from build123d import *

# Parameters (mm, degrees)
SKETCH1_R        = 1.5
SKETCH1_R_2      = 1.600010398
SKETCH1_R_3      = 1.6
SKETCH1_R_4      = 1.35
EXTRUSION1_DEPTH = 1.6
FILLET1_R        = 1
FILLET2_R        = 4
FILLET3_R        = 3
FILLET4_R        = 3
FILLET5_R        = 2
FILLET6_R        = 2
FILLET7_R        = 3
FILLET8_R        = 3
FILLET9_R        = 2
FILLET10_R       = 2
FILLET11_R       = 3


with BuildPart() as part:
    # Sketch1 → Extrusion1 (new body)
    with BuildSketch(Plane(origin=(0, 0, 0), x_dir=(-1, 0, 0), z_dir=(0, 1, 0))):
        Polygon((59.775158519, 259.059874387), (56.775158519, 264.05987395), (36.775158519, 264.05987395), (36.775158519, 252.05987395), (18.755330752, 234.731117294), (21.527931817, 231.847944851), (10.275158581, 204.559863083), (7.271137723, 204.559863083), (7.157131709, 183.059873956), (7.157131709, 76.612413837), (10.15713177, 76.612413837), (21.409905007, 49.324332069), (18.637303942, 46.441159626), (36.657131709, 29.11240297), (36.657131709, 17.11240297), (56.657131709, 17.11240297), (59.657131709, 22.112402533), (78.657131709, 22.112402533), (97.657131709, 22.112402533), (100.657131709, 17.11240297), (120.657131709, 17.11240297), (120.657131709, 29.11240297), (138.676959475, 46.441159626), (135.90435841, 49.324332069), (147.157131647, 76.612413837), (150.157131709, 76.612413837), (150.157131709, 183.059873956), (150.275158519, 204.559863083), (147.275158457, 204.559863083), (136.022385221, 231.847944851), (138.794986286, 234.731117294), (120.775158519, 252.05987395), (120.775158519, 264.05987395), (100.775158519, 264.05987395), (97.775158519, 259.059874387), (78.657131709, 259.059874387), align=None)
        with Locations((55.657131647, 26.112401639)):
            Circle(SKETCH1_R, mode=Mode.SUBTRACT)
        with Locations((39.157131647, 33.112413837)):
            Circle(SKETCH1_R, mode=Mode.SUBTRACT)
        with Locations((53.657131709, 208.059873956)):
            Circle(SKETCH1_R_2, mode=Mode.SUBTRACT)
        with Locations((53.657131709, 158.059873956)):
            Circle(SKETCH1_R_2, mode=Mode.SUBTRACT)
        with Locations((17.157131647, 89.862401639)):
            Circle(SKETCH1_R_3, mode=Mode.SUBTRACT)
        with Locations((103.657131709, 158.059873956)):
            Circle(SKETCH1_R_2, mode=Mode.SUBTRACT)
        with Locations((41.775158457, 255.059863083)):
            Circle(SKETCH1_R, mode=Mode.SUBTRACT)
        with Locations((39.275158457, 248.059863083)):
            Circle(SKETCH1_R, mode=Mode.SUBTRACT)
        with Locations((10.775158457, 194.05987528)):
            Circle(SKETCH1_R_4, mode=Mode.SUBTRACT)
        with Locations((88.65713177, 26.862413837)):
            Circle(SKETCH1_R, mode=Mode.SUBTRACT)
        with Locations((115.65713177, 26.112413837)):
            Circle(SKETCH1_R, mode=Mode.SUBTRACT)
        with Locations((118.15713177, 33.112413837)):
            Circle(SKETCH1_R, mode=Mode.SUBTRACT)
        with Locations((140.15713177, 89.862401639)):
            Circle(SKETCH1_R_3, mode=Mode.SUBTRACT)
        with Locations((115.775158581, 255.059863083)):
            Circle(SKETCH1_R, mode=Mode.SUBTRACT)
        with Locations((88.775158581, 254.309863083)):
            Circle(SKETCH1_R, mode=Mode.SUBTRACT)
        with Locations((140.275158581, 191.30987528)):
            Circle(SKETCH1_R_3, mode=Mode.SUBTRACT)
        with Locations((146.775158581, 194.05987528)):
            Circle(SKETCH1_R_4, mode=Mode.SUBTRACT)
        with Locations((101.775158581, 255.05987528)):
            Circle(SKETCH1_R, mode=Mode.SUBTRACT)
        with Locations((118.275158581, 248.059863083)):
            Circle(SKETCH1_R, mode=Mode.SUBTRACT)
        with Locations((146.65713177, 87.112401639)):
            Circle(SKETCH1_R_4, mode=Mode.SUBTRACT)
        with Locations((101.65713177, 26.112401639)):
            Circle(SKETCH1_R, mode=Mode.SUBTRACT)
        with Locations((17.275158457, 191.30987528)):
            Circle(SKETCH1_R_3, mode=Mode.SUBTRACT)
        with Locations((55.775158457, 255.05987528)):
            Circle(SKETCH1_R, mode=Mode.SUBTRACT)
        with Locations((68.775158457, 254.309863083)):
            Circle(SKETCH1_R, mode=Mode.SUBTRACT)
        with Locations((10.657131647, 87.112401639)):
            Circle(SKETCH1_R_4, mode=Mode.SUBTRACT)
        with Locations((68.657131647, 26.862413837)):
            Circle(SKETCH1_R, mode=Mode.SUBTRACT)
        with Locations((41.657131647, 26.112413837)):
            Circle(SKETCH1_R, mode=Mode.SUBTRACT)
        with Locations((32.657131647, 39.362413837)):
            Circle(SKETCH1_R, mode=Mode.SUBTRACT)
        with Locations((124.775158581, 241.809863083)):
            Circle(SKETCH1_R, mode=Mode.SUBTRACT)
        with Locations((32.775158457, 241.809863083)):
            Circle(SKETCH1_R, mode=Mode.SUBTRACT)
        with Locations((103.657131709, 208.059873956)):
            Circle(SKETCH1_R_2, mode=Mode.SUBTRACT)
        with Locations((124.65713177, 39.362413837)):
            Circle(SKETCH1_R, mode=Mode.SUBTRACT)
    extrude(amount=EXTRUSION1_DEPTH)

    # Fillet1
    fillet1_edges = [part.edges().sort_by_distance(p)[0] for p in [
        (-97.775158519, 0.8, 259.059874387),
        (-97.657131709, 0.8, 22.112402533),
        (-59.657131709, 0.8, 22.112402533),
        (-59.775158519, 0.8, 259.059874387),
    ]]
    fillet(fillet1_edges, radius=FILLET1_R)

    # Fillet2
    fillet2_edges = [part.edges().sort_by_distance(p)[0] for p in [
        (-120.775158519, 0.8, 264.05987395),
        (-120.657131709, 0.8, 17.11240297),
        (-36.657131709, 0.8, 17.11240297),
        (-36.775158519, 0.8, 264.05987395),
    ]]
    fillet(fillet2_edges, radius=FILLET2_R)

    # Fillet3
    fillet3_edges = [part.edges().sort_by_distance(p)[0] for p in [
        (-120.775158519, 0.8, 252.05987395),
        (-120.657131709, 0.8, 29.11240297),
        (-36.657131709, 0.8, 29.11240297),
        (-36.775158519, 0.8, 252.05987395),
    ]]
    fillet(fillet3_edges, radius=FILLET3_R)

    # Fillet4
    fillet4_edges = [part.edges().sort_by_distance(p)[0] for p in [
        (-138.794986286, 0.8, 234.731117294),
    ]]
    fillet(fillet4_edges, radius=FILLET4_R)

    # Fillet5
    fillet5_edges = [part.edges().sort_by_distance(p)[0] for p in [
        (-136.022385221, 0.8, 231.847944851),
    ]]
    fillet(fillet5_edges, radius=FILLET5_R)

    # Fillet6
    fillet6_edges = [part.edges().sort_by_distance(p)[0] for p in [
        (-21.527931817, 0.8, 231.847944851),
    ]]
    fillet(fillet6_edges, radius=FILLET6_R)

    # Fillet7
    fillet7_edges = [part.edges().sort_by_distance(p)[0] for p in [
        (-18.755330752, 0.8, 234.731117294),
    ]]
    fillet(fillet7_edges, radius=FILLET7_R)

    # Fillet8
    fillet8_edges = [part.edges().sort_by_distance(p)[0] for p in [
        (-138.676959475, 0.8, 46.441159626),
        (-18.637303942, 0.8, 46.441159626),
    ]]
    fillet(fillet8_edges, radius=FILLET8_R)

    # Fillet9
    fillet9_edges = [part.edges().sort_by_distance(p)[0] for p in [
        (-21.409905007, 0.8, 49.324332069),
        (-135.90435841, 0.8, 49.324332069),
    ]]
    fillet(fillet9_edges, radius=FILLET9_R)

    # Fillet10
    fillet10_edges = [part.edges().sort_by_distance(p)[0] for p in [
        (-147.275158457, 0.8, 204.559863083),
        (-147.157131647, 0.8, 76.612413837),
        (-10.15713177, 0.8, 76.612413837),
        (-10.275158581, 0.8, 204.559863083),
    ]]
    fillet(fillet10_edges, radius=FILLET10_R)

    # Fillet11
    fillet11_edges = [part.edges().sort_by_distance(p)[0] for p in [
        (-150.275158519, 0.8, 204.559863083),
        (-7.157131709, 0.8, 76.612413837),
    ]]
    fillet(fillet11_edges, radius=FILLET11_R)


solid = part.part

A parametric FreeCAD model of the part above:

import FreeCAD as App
import Part
import Sketcher
Q = App.Units.Quantity


def edges_at(feature, points):
    """Names of the edges that pass closest to the given points."""
    edges = feature.Shape.Edges
    near = lambda p: min(range(len(edges)), key=lambda i: edges[i].distToShape(Part.Vertex(*p))[0])
    return sorted({f"Edge{near(p) + 1}" for p in points})

doc = App.newDocument("Part")
body = doc.addObject("PartDesign::Body", "Body")

# Sketch on XZ plane
sketch1 = body.newObject("Sketcher::SketchObject", "Sketch")
sketch1.AttachmentSupport = (doc.getObject("XZ_Plane"), [""])
sketch1.MapMode = "FlatFace"
sketch1.addGeometry(Part.LineSegment(App.Vector(-59.8, 259.1, 0), App.Vector(-56.8, 264.1, 0)), False)
sketch1.addGeometry(Part.LineSegment(App.Vector(-56.8, 264.1, 0), App.Vector(-36.8, 264.1, 0)), False)
sketch1.addGeometry(Part.LineSegment(App.Vector(-36.8, 264.1, 0), App.Vector(-36.8, 252.1, 0)), False)
sketch1.addGeometry(Part.LineSegment(App.Vector(-36.8, 252.1, 0), App.Vector(-18.8, 234.7, 0)), False)
sketch1.addGeometry(Part.LineSegment(App.Vector(-18.8, 234.7, 0), App.Vector(-21.5, 231.8, 0)), False)
sketch1.addGeometry(Part.LineSegment(App.Vector(-21.5, 231.8, 0), App.Vector(-10.3, 204.6, 0)), False)
sketch1.addGeometry(Part.LineSegment(App.Vector(-10.3, 204.6, 0), App.Vector(-7.3, 204.6, 0)), False)
sketch1.addGeometry(Part.LineSegment(App.Vector(-7.3, 204.6, 0), App.Vector(-7.2, 183.1, 0)), False)
sketch1.addGeometry(Part.LineSegment(App.Vector(-7.2, 183.1, 0), App.Vector(-7.2, 76.6, 0)), False)
sketch1.addGeometry(Part.LineSegment(App.Vector(-7.2, 76.6, 0), App.Vector(-10.2, 76.6, 0)), False)
sketch1.addGeometry(Part.LineSegment(App.Vector(-10.2, 76.6, 0), App.Vector(-21.4, 49.3, 0)), False)
sketch1.addGeometry(Part.LineSegment(App.Vector(-21.4, 49.3, 0), App.Vector(-18.6, 46.4, 0)), False)
sketch1.addGeometry(Part.LineSegment(App.Vector(-18.6, 46.4, 0), App.Vector(-36.7, 29.1, 0)), False)
sketch1.addGeometry(Part.LineSegment(App.Vector(-36.7, 29.1, 0), App.Vector(-36.7, 17.1, 0)), False)
sketch1.addGeometry(Part.LineSegment(App.Vector(-36.7, 17.1, 0), App.Vector(-56.7, 17.1, 0)), False)
sketch1.addGeometry(Part.LineSegment(App.Vector(-56.7, 17.1, 0), App.Vector(-59.7, 22.1, 0)), False)
sketch1.addGeometry(Part.LineSegment(App.Vector(-59.7, 22.1, 0), App.Vector(-97.7, 22.1, 0)), False)
sketch1.addGeometry(Part.LineSegment(App.Vector(-97.7, 22.1, 0), App.Vector(-100.7, 17.1, 0)), False)
sketch1.addGeometry(Part.LineSegment(App.Vector(-100.7, 17.1, 0), App.Vector(-120.7, 17.1, 0)), False)
sketch1.addGeometry(Part.LineSegment(App.Vector(-120.7, 17.1, 0), App.Vector(-120.7, 29.1, 0)), False)
sketch1.addGeometry(Part.LineSegment(App.Vector(-120.7, 29.1, 0), App.Vector(-138.7, 46.4, 0)), False)
sketch1.addGeometry(Part.LineSegment(App.Vector(-138.7, 46.4, 0), App.Vector(-135.9, 49.3, 0)), False)
sketch1.addGeometry(Part.LineSegment(App.Vector(-135.9, 49.3, 0), App.Vector(-147.2, 76.6, 0)), False)
sketch1.addGeometry(Part.LineSegment(App.Vector(-147.2, 76.6, 0), App.Vector(-150.2, 76.6, 0)), False)
sketch1.addGeometry(Part.LineSegment(App.Vector(-150.2, 76.6, 0), App.Vector(-150.2, 183.1, 0)), False)
sketch1.addGeometry(Part.LineSegment(App.Vector(-150.2, 183.1, 0), App.Vector(-150.3, 204.6, 0)), False)
sketch1.addGeometry(Part.LineSegment(App.Vector(-150.3, 204.6, 0), App.Vector(-147.3, 204.6, 0)), False)
sketch1.addGeometry(Part.LineSegment(App.Vector(-147.3, 204.6, 0), App.Vector(-136, 231.8, 0)), False)
sketch1.addGeometry(Part.LineSegment(App.Vector(-136, 231.8, 0), App.Vector(-138.8, 234.7, 0)), False)
sketch1.addGeometry(Part.LineSegment(App.Vector(-138.8, 234.7, 0), App.Vector(-120.8, 252.1, 0)), False)
sketch1.addGeometry(Part.LineSegment(App.Vector(-120.8, 252.1, 0), App.Vector(-120.8, 264.1, 0)), False)
sketch1.addGeometry(Part.LineSegment(App.Vector(-120.8, 264.1, 0), App.Vector(-100.8, 264.1, 0)), False)
sketch1.addGeometry(Part.LineSegment(App.Vector(-100.8, 264.1, 0), App.Vector(-97.8, 259.1, 0)), False)
sketch1.addGeometry(Part.LineSegment(App.Vector(-97.8, 259.1, 0), App.Vector(-59.8, 259.1, 0)), False)
sketch1.addGeometry(Part.Circle(App.Vector(-41.7, 26.1, 0), App.Vector(0, 0, 1), 1.5), False)
sketch1.addGeometry(Part.Circle(App.Vector(-39.2, 33.1, 0), App.Vector(0, 0, 1), 1.5), False)
sketch1.addGeometry(Part.Circle(App.Vector(-32.7, 39.4, 0), App.Vector(0, 0, 1), 1.5), False)
sketch1.addGeometry(Part.Circle(App.Vector(-55.7, 26.1, 0), App.Vector(0, 0, 1), 1.5), False)
sketch1.addGeometry(Part.Circle(App.Vector(-68.7, 26.9, 0), App.Vector(0, 0, 1), 1.5), False)
sketch1.addGeometry(Part.Circle(App.Vector(-10.7, 87.1, 0), App.Vector(0, 0, 1), 1.4), False)
sketch1.addGeometry(Part.Circle(App.Vector(-17.2, 89.9, 0), App.Vector(0, 0, 1), 1.6), False)
sketch1.addGeometry(Part.Circle(App.Vector(-88.7, 26.9, 0), App.Vector(0, 0, 1), 1.5), False)
sketch1.addGeometry(Part.Circle(App.Vector(-101.7, 26.1, 0), App.Vector(0, 0, 1), 1.5), False)
sketch1.addGeometry(Part.Circle(App.Vector(-115.7, 26.1, 0), App.Vector(0, 0, 1), 1.5), False)
sketch1.addGeometry(Part.Circle(App.Vector(-118.2, 33.1, 0), App.Vector(0, 0, 1), 1.5), False)
sketch1.addGeometry(Part.Circle(App.Vector(-124.7, 39.4, 0), App.Vector(0, 0, 1), 1.5), False)
sketch1.addGeometry(Part.Circle(App.Vector(-146.7, 87.1, 0), App.Vector(0, 0, 1), 1.4), False)
sketch1.addGeometry(Part.Circle(App.Vector(-140.2, 89.9, 0), App.Vector(0, 0, 1), 1.6), False)
sketch1.addGeometry(Part.Circle(App.Vector(-17.3, 191.3, 0), App.Vector(0, 0, 1), 1.6), False)
sketch1.addGeometry(Part.Circle(App.Vector(-10.8, 194.1, 0), App.Vector(0, 0, 1), 1.4), False)
sketch1.addGeometry(Part.Circle(App.Vector(-53.7, 158.1, 0), App.Vector(0, 0, 1), 1.6), False)
sketch1.addGeometry(Part.Circle(App.Vector(-32.8, 241.8, 0), App.Vector(0, 0, 1), 1.5), False)
sketch1.addGeometry(Part.Circle(App.Vector(-39.3, 248.1, 0), App.Vector(0, 0, 1), 1.5), False)
sketch1.addGeometry(Part.Circle(App.Vector(-41.8, 255.1, 0), App.Vector(0, 0, 1), 1.5), False)
sketch1.addGeometry(Part.Circle(App.Vector(-53.7, 208.1, 0), App.Vector(0, 0, 1), 1.6), False)
sketch1.addGeometry(Part.Circle(App.Vector(-55.8, 255.1, 0), App.Vector(0, 0, 1), 1.5), False)
sketch1.addGeometry(Part.Circle(App.Vector(-68.8, 254.3, 0), App.Vector(0, 0, 1), 1.5), False)
sketch1.addGeometry(Part.Circle(App.Vector(-103.7, 158.1, 0), App.Vector(0, 0, 1), 1.6), False)
sketch1.addGeometry(Part.Circle(App.Vector(-140.3, 191.3, 0), App.Vector(0, 0, 1), 1.6), False)
sketch1.addGeometry(Part.Circle(App.Vector(-146.8, 194.1, 0), App.Vector(0, 0, 1), 1.4), False)
sketch1.addGeometry(Part.Circle(App.Vector(-103.7, 208.1, 0), App.Vector(0, 0, 1), 1.6), False)
sketch1.addGeometry(Part.Circle(App.Vector(-88.8, 254.3, 0), App.Vector(0, 0, 1), 1.5), False)
sketch1.addGeometry(Part.Circle(App.Vector(-101.8, 255.1, 0), App.Vector(0, 0, 1), 1.5), False)
sketch1.addGeometry(Part.Circle(App.Vector(-124.8, 241.8, 0), App.Vector(0, 0, 1), 1.5), False)
sketch1.addGeometry(Part.Circle(App.Vector(-118.3, 248.1, 0), App.Vector(0, 0, 1), 1.5), False)
sketch1.addGeometry(Part.Circle(App.Vector(-115.8, 255.1, 0), App.Vector(0, 0, 1), 1.5), False)
sketch1.addConstraint(Sketcher.Constraint("Coincident", 0, 2, 1, 1))
sketch1.addConstraint(Sketcher.Constraint("Coincident", 1, 2, 2, 1))
sketch1.addConstraint(Sketcher.Constraint("Coincident", 2, 2, 3, 1))
sketch1.addConstraint(Sketcher.Constraint("Coincident", 3, 2, 4, 1))
sketch1.addConstraint(Sketcher.Constraint("Coincident", 4, 2, 5, 1))
sketch1.addConstraint(Sketcher.Constraint("Coincident", 5, 2, 6, 1))
sketch1.addConstraint(Sketcher.Constraint("Coincident", 6, 2, 7, 1))
sketch1.addConstraint(Sketcher.Constraint("Coincident", 7, 2, 8, 1))
sketch1.addConstraint(Sketcher.Constraint("Coincident", 8, 2, 9, 1))
sketch1.addConstraint(Sketcher.Constraint("Coincident", 9, 2, 10, 1))
sketch1.addConstraint(Sketcher.Constraint("Coincident", 10, 2, 11, 1))
sketch1.addConstraint(Sketcher.Constraint("Coincident", 11, 2, 12, 1))
sketch1.addConstraint(Sketcher.Constraint("Coincident", 12, 2, 13, 1))
sketch1.addConstraint(Sketcher.Constraint("Coincident", 13, 2, 14, 1))
sketch1.addConstraint(Sketcher.Constraint("Coincident", 14, 2, 15, 1))
sketch1.addConstraint(Sketcher.Constraint("Coincident", 15, 2, 16, 1))
sketch1.addConstraint(Sketcher.Constraint("Coincident", 16, 2, 17, 1))
sketch1.addConstraint(Sketcher.Constraint("Coincident", 17, 2, 18, 1))
sketch1.addConstraint(Sketcher.Constraint("Coincident", 18, 2, 19, 1))
sketch1.addConstraint(Sketcher.Constraint("Coincident", 19, 2, 20, 1))
sketch1.addConstraint(Sketcher.Constraint("Coincident", 20, 2, 21, 1))
sketch1.addConstraint(Sketcher.Constraint("Coincident", 21, 2, 22, 1))
sketch1.addConstraint(Sketcher.Constraint("Coincident", 22, 2, 23, 1))
sketch1.addConstraint(Sketcher.Constraint("Coincident", 23, 2, 24, 1))
sketch1.addConstraint(Sketcher.Constraint("Coincident", 24, 2, 25, 1))
sketch1.addConstraint(Sketcher.Constraint("Coincident", 25, 2, 26, 1))
sketch1.addConstraint(Sketcher.Constraint("Coincident", 26, 2, 27, 1))
sketch1.addConstraint(Sketcher.Constraint("Coincident", 27, 2, 28, 1))
sketch1.addConstraint(Sketcher.Constraint("Coincident", 28, 2, 29, 1))
sketch1.addConstraint(Sketcher.Constraint("Coincident", 29, 2, 30, 1))
sketch1.addConstraint(Sketcher.Constraint("Coincident", 30, 2, 31, 1))
sketch1.addConstraint(Sketcher.Constraint("Coincident", 31, 2, 32, 1))
sketch1.addConstraint(Sketcher.Constraint("Coincident", 32, 2, 33, 1))
sketch1.addConstraint(Sketcher.Constraint("Coincident", 33, 2, 0, 1))
sketch1.addConstraint(Sketcher.Constraint("Horizontal", 1))
sketch1.addConstraint(Sketcher.Constraint("Vertical", 2))
sketch1.addConstraint(Sketcher.Constraint("Horizontal", 6))
sketch1.addConstraint(Sketcher.Constraint("Vertical", 8))
sketch1.addConstraint(Sketcher.Constraint("Horizontal", 9))
sketch1.addConstraint(Sketcher.Constraint("Vertical", 13))
sketch1.addConstraint(Sketcher.Constraint("Horizontal", 14))
sketch1.addConstraint(Sketcher.Constraint("Horizontal", 16))
sketch1.addConstraint(Sketcher.Constraint("Horizontal", 18))
sketch1.addConstraint(Sketcher.Constraint("Vertical", 19))
sketch1.addConstraint(Sketcher.Constraint("Horizontal", 23))
sketch1.addConstraint(Sketcher.Constraint("Vertical", 24))
sketch1.addConstraint(Sketcher.Constraint("Horizontal", 26))
sketch1.addConstraint(Sketcher.Constraint("Vertical", 30))
sketch1.addConstraint(Sketcher.Constraint("Horizontal", 31))
sketch1.addConstraint(Sketcher.Constraint("Horizontal", 33))
sketch1.addConstraint(Sketcher.Constraint("Equal", 34, 35))
sketch1.addConstraint(Sketcher.Constraint("Equal", 35, 36))
sketch1.addConstraint(Sketcher.Constraint("Equal", 36, 37))
sketch1.addConstraint(Sketcher.Constraint("Equal", 37, 38))
sketch1.addConstraint(Sketcher.Constraint("Equal", 38, 41))
sketch1.addConstraint(Sketcher.Constraint("Equal", 41, 42))
sketch1.addConstraint(Sketcher.Constraint("Equal", 42, 43))
sketch1.addConstraint(Sketcher.Constraint("Equal", 43, 44))
sketch1.addConstraint(Sketcher.Constraint("Equal", 44, 45))
sketch1.addConstraint(Sketcher.Constraint("Equal", 39, 46))
sketch1.addConstraint(Sketcher.Constraint("Equal", 40, 47))
sketch1.addConstraint(Sketcher.Constraint("Equal", 47, 48))
sketch1.addConstraint(Sketcher.Constraint("Equal", 46, 49))
sketch1.addConstraint(Sketcher.Constraint("Equal", 45, 51))
sketch1.addConstraint(Sketcher.Constraint("Equal", 51, 52))
sketch1.addConstraint(Sketcher.Constraint("Equal", 52, 53))
sketch1.addConstraint(Sketcher.Constraint("Equal", 50, 54))
sketch1.addConstraint(Sketcher.Constraint("Equal", 53, 55))
sketch1.addConstraint(Sketcher.Constraint("Equal", 55, 56))
sketch1.addConstraint(Sketcher.Constraint("Equal", 54, 57))
sketch1.addConstraint(Sketcher.Constraint("Equal", 48, 58))
sketch1.addConstraint(Sketcher.Constraint("Equal", 49, 59))
sketch1.addConstraint(Sketcher.Constraint("Equal", 57, 60))
sketch1.addConstraint(Sketcher.Constraint("Equal", 56, 61))
sketch1.addConstraint(Sketcher.Constraint("Equal", 61, 62))
sketch1.addConstraint(Sketcher.Constraint("Equal", 62, 63))
sketch1.addConstraint(Sketcher.Constraint("Equal", 63, 64))
sketch1.addConstraint(Sketcher.Constraint("Equal", 64, 65))
sketch1.addConstraint(Sketcher.Constraint("Perpendicular", 3, 4))
sketch1.addConstraint(Sketcher.Constraint("Perpendicular", 11, 12))
sketch1.addConstraint(Sketcher.Constraint("Parallel", 0, 17))
sketch1.addConstraint(Sketcher.Constraint("Perpendicular", 4, 20))
sketch1.addConstraint(Sketcher.Constraint("Perpendicular", 20, 21))
sketch1.addConstraint(Sketcher.Constraint("Parallel", 5, 22))
sketch1.addConstraint(Sketcher.Constraint("Parallel", 10, 27))
sketch1.addConstraint(Sketcher.Constraint("Perpendicular", 12, 28))
sketch1.addConstraint(Sketcher.Constraint("Perpendicular", 28, 29))
sketch1.addConstraint(Sketcher.Constraint("Parallel", 15, 32))
sketch1.addConstraint(Sketcher.Constraint("Horizontal", 38, 3, 41, 3))
sketch1.addConstraint(Sketcher.Constraint("Horizontal", 37, 3, 42, 3))
sketch1.addConstraint(Sketcher.Constraint("Horizontal", 34, 3, 43, 3))
sketch1.addConstraint(Sketcher.Constraint("Horizontal", 35, 3, 44, 3))
sketch1.addConstraint(Sketcher.Constraint("Horizontal", 36, 3, 45, 3))
sketch1.addConstraint(Sketcher.Constraint("Horizontal", 39, 3, 46, 3))
sketch1.addConstraint(Sketcher.Constraint("Horizontal", 40, 3, 47, 3))
sketch1.addConstraint(Sketcher.Constraint("Horizontal", 50, 3, 57, 3))
sketch1.addConstraint(Sketcher.Constraint("Horizontal", 48, 3, 58, 3))
sketch1.addConstraint(Sketcher.Constraint("Horizontal", 49, 3, 59, 3))
sketch1.addConstraint(Sketcher.Constraint("Horizontal", 54, 3, 60, 3))
sketch1.addConstraint(Sketcher.Constraint("Horizontal", 56, 3, 61, 3))
sketch1.addConstraint(Sketcher.Constraint("Horizontal", 55, 3, 62, 3))
sketch1.addConstraint(Sketcher.Constraint("Horizontal", 51, 3, 63, 3))
sketch1.addConstraint(Sketcher.Constraint("Horizontal", 52, 3, 64, 3))
sketch1.addConstraint(Sketcher.Constraint("Horizontal", 53, 3, 65, 3))
sketch1.addConstraint(Sketcher.Constraint("Horizontal", 14, 2, 17, 2))
sketch1.addConstraint(Sketcher.Constraint("Horizontal", 12, 2, 19, 2))
sketch1.addConstraint(Sketcher.Constraint("Horizontal", 11, 2, 20, 2))
sketch1.addConstraint(Sketcher.Constraint("Horizontal", 10, 2, 21, 2))
sketch1.addConstraint(Sketcher.Constraint("Horizontal", 9, 2, 22, 2))
sketch1.addConstraint(Sketcher.Constraint("Horizontal", 7, 2, 24, 2))
sketch1.addConstraint(Sketcher.Constraint("Horizontal", 6, 2, 25, 2))
sketch1.addConstraint(Sketcher.Constraint("Horizontal", 4, 2, 27, 2))
sketch1.addConstraint(Sketcher.Constraint("Horizontal", 3, 2, 28, 2))
sketch1.addConstraint(Sketcher.Constraint("Horizontal", 2, 2, 29, 2))
sketch1.addConstraint(Sketcher.Constraint("Horizontal", 1, 2, 30, 2))
sketch1.addConstraint(Sketcher.Constraint("Vertical", 50, 3, 54, 3))
sketch1.addConstraint(Sketcher.Constraint("Vertical", 57, 3, 60, 3))
sketch1.addConstraint(Sketcher.Constraint("Equal", 1, 14))
sketch1.addConstraint(Sketcher.Constraint("Equal", 14, 18))
sketch1.addConstraint(Sketcher.Constraint("Equal", 9, 23))
sketch1.addConstraint(Sketcher.Constraint("Equal", 23, 26))
sketch1.addConstraint(Sketcher.Constraint("Equal", 18, 31))
sketch1.addConstraint(Sketcher.Constraint("Equal", 16, 33))
sketch1.addConstraint(Sketcher.Constraint("Equal", 2, 13))
sketch1.addConstraint(Sketcher.Constraint("Equal", 5, 10))
sketch1.addConstraint(Sketcher.Constraint("Equal", 4, 11))
sketch1.addConstraint(Sketcher.Constraint("Equal", 3, 12))
sketch1.addConstraint(Sketcher.Constraint("Equal", 0, 15))
sketch1.addConstraint(Sketcher.Constraint("Equal", 15, 17))
sketch1.addConstraint(Sketcher.Constraint("Equal", 12, 20))
sketch1.addConstraint(Sketcher.Constraint("Equal", 10, 22))
sketch1.addConstraint(Sketcher.Constraint("Diameter", 34, Q("3 mm")))
sketch1.addConstraint(Sketcher.Constraint("Diameter", 39, Q("2.7 mm")))
sketch1.addConstraint(Sketcher.Constraint("Diameter", 40, Q("3.2 mm")))
sketch1.addConstraint(Sketcher.Constraint("DistanceX", 1, 1, 1, 2, Q("20 mm")))
sketch1.addConstraint(Sketcher.Constraint("DistanceX", 9, 2, 9, 1, Q("3 mm")))
sketch1.addConstraint(Sketcher.Constraint("DistanceX", 16, 2, 16, 1, Q("38 mm")))
sketch1.addConstraint(Sketcher.Constraint("DistanceY", 2, 2, 2, 1, Q("12 mm")))
sketch1.addConstraint(Sketcher.Constraint("Distance", 3, Q("25 mm")))
sketch1.addConstraint(Sketcher.Constraint("Distance", 4, Q("4 mm")))
sketch1.addConstraint(Sketcher.Constraint("Angle", 3, Q("-43.88 deg")))
sketch1.addConstraint(Sketcher.Constraint("Diameter", 50, Q("3.200021 mm")))
sketch1.addConstraint(Sketcher.Constraint("DistanceX", 6, 1, 6, 2, Q("3.004021 mm")))
sketch1.addConstraint(Sketcher.Constraint("DistanceY", 8, 2, 8, 1, Q("106.44746 mm")))
sketch1.addConstraint(Sketcher.Constraint("DistanceY", -1, 1, 37, 3, Q("26.112402 mm")))
sketch1.addConstraint(Sketcher.Constraint("DistanceY", -1, 1, 39, 3, Q("87.112402 mm")))
sketch1.addConstraint(Sketcher.Constraint("DistanceY", -1, 1, 40, 3, Q("89.862402 mm")))
sketch1.addConstraint(Sketcher.Constraint("Distance", 0, Q("5.830952 mm")))
sketch1.addConstraint(Sketcher.Constraint("Distance", 7, Q("21.500291 mm")))
sketch1.addConstraint(Sketcher.Constraint("DistanceX", 34, 3, -1, 1, Q("41.657132 mm")))
sketch1.addConstraint(Sketcher.Constraint("DistanceX", 35, 3, -1, 1, Q("39.157132 mm")))
sketch1.addConstraint(Sketcher.Constraint("DistanceX", 36, 3, -1, 1, Q("32.657132 mm")))
sketch1.addConstraint(Sketcher.Constraint("DistanceX", 37, 3, -1, 1, Q("55.657132 mm")))
sketch1.addConstraint(Sketcher.Constraint("DistanceX", 38, 3, -1, 1, Q("68.657132 mm")))
sketch1.addConstraint(Sketcher.Constraint("DistanceX", 39, 3, -1, 1, Q("10.657132 mm")))
sketch1.addConstraint(Sketcher.Constraint("DistanceX", 40, 3, -1, 1, Q("17.157132 mm")))
sketch1.addConstraint(Sketcher.Constraint("DistanceX", 41, 3, -1, 1, Q("88.657132 mm")))
sketch1.addConstraint(Sketcher.Constraint("DistanceX", 42, 3, -1, 1, Q("101.657132 mm")))
sketch1.addConstraint(Sketcher.Constraint("DistanceX", 43, 3, -1, 1, Q("115.657132 mm")))
sketch1.addConstraint(Sketcher.Constraint("DistanceX", 44, 3, -1, 1, Q("118.157132 mm")))
sketch1.addConstraint(Sketcher.Constraint("DistanceX", 45, 3, -1, 1, Q("124.657132 mm")))
sketch1.addConstraint(Sketcher.Constraint("DistanceX", 46, 3, -1, 1, Q("146.657132 mm")))
sketch1.addConstraint(Sketcher.Constraint("DistanceX", 47, 3, -1, 1, Q("140.157132 mm")))
sketch1.addConstraint(Sketcher.Constraint("DistanceX", 48, 3, -1, 1, Q("17.275158 mm")))
sketch1.addConstraint(Sketcher.Constraint("DistanceX", 49, 3, -1, 1, Q("10.775158 mm")))
sketch1.addConstraint(Sketcher.Constraint("DistanceX", 50, 3, -1, 1, Q("53.657132 mm")))
sketch1.addConstraint(Sketcher.Constraint("DistanceX", 51, 3, -1, 1, Q("32.775158 mm")))
sketch1.addConstraint(Sketcher.Constraint("DistanceX", 52, 3, -1, 1, Q("39.275158 mm")))
sketch1.addConstraint(Sketcher.Constraint("DistanceX", 53, 3, -1, 1, Q("41.775158 mm")))
sketch1.addConstraint(Sketcher.Constraint("DistanceX", 55, 3, -1, 1, Q("55.775158 mm")))
sketch1.addConstraint(Sketcher.Constraint("DistanceX", 56, 3, -1, 1, Q("68.775158 mm")))
sketch1.addConstraint(Sketcher.Constraint("DistanceX", 57, 3, -1, 1, Q("103.657132 mm")))
sketch1.addConstraint(Sketcher.Constraint("DistanceX", 58, 3, -1, 1, Q("140.275159 mm")))
sketch1.addConstraint(Sketcher.Constraint("DistanceX", 59, 3, -1, 1, Q("146.775159 mm")))
sketch1.addConstraint(Sketcher.Constraint("DistanceX", 61, 3, -1, 1, Q("88.775159 mm")))
sketch1.addConstraint(Sketcher.Constraint("DistanceX", 62, 3, -1, 1, Q("101.775159 mm")))
sketch1.addConstraint(Sketcher.Constraint("DistanceX", 63, 3, -1, 1, Q("124.775159 mm")))
sketch1.addConstraint(Sketcher.Constraint("DistanceX", 64, 3, -1, 1, Q("118.275159 mm")))
sketch1.addConstraint(Sketcher.Constraint("DistanceX", 65, 3, -1, 1, Q("115.775159 mm")))
sketch1.addConstraint(Sketcher.Constraint("DistanceX", 0, 2, -1, 1, Q("56.775159 mm")))
sketch1.addConstraint(Sketcher.Constraint("DistanceX", 5, 2, -1, 1, Q("10.275159 mm")))
sketch1.addConstraint(Sketcher.Constraint("DistanceX", 7, 2, -1, 1, Q("7.157132 mm")))
sketch1.addConstraint(Sketcher.Constraint("DistanceY", -1, 1, 11, 2, Q("46.44116 mm")))
sketch1.addConstraint(Sketcher.Constraint("DistanceX", 15, 2, -1, 1, Q("59.657132 mm")))
sketch1.addConstraint(Sketcher.Constraint("Distance", 5, Q("29.517187 mm")))
sketch1.addConstraint(Sketcher.Constraint("DistanceY", -1, 1, 34, 3, Q("26.112414 mm")))
sketch1.addConstraint(Sketcher.Constraint("DistanceY", -1, 1, 35, 3, Q("33.112414 mm")))
sketch1.addConstraint(Sketcher.Constraint("DistanceY", -1, 1, 36, 3, Q("39.362414 mm")))
sketch1.addConstraint(Sketcher.Constraint("DistanceY", -1, 1, 38, 3, Q("26.862414 mm")))
sketch1.addConstraint(Sketcher.Constraint("DistanceY", -1, 1, 48, 3, Q("191.309875 mm")))
sketch1.addConstraint(Sketcher.Constraint("DistanceY", -1, 1, 49, 3, Q("194.059875 mm")))
sketch1.addConstraint(Sketcher.Constraint("DistanceY", -1, 1, 50, 3, Q("158.059874 mm")))
sketch1.addConstraint(Sketcher.Constraint("DistanceY", -1, 1, 51, 3, Q("241.809863 mm")))
sketch1.addConstraint(Sketcher.Constraint("DistanceY", -1, 1, 52, 3, Q("248.059863 mm")))
sketch1.addConstraint(Sketcher.Constraint("DistanceY", -1, 1, 53, 3, Q("255.059863 mm")))
sketch1.addConstraint(Sketcher.Constraint("DistanceY", -1, 1, 54, 3, Q("208.059874 mm")))
sketch1.addConstraint(Sketcher.Constraint("DistanceY", -1, 1, 55, 3, Q("255.059875 mm")))
sketch1.addConstraint(Sketcher.Constraint("DistanceY", -1, 1, 56, 3, Q("254.309863 mm")))
pad1 = body.newObject("PartDesign::Pad", "Pad")
pad1.Profile = sketch1
pad1.Length = 1.6
pad1.Reversed = True
doc.recompute()

fillet = body.newObject("PartDesign::Fillet", "Fillet")
fillet.Base = (pad1, edges_at(pad1, [
    (-97.775, 0.8, 259.06),
    (-97.657, 0.8, 22.112),
    (-59.657, 0.8, 22.112),
    (-59.775, 0.8, 259.06),
]))
fillet.Radius = 1
doc.recompute()

fillet2 = body.newObject("PartDesign::Fillet", "Fillet001")
fillet2.Base = (fillet, edges_at(fillet, [
    (-120.775, 0.8, 264.06),
    (-120.657, 0.8, 17.112),
    (-36.657, 0.8, 17.112),
    (-36.775, 0.8, 264.06),
]))
fillet2.Radius = 4
doc.recompute()

fillet3 = body.newObject("PartDesign::Fillet", "Fillet002")
fillet3.Base = (fillet2, edges_at(fillet2, [
    (-120.775, 0.8, 252.06),
    (-120.657, 0.8, 29.112),
    (-36.657, 0.8, 29.112),
    (-36.775, 0.8, 252.06),
]))
fillet3.Radius = 3
doc.recompute()

fillet4 = body.newObject("PartDesign::Fillet", "Fillet003")
fillet4.Base = (fillet3, edges_at(fillet3, [(-138.795, 0.8, 234.731)]))
fillet4.Radius = 3
doc.recompute()

fillet5 = body.newObject("PartDesign::Fillet", "Fillet004")
fillet5.Base = (fillet4, edges_at(fillet4, [(-136.022, 0.8, 231.848)]))
fillet5.Radius = 2
doc.recompute()

fillet6 = body.newObject("PartDesign::Fillet", "Fillet005")
fillet6.Base = (fillet5, edges_at(fillet5, [(-21.528, 0.8, 231.848)]))
fillet6.Radius = 2
doc.recompute()

fillet7 = body.newObject("PartDesign::Fillet", "Fillet006")
fillet7.Base = (fillet6, edges_at(fillet6, [(-18.755, 0.8, 234.731)]))
fillet7.Radius = 3
doc.recompute()

fillet8 = body.newObject("PartDesign::Fillet", "Fillet007")
fillet8.Base = (fillet7, edges_at(fillet7, [(-138.677, 0.8, 46.441), (-18.637, 0.8, 46.441)]))
fillet8.Radius = 3
doc.recompute()

fillet9 = body.newObject("PartDesign::Fillet", "Fillet008")
fillet9.Base = (fillet8, edges_at(fillet8, [(-21.41, 0.8, 49.324), (-135.904, 0.8, 49.324)]))
fillet9.Radius = 2
doc.recompute()

fillet10 = body.newObject("PartDesign::Fillet", "Fillet009")
fillet10.Base = (fillet9, edges_at(fillet9, [
    (-147.275, 0.8, 204.56),
    (-147.157, 0.8, 76.612),
    (-10.157, 0.8, 76.612),
    (-10.275, 0.8, 204.56),
]))
fillet10.Radius = 2
doc.recompute()

fillet11 = body.newObject("PartDesign::Fillet", "Fillet010")
fillet11.Base = (fillet10, edges_at(fillet10, [(-150.275, 0.8, 204.56), (-7.157, 0.8, 76.612)]))
fillet11.Radius = 3

doc.recompute()
